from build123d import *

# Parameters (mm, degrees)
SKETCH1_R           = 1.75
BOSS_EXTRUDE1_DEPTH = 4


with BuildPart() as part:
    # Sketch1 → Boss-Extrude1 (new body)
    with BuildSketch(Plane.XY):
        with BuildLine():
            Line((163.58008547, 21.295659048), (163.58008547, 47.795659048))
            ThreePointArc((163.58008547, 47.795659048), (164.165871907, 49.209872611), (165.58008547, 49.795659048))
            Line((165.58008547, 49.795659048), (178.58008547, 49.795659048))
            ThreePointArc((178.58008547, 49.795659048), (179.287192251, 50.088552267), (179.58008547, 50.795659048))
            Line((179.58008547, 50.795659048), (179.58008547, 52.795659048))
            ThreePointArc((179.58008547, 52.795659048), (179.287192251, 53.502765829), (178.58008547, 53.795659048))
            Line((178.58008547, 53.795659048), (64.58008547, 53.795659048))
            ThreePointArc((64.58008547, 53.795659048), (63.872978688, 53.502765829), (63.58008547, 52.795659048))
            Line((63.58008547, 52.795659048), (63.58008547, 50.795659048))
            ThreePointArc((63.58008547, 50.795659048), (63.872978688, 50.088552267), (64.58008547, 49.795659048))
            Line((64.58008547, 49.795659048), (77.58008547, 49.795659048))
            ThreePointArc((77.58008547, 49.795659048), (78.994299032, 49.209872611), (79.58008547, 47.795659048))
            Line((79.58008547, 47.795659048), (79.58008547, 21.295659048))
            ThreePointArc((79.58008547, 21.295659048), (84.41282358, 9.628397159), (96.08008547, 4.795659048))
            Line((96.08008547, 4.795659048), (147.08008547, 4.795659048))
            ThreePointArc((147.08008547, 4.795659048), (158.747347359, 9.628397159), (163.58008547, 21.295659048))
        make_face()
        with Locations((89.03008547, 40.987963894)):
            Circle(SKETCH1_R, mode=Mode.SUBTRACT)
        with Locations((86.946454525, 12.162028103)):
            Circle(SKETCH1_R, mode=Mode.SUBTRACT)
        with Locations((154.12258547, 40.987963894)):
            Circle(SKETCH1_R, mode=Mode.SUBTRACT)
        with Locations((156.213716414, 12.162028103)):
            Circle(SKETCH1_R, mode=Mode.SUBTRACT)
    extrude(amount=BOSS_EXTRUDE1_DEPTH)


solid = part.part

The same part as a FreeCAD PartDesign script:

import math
import FreeCAD as App
import Part
import Sketcher

doc = App.newDocument("Part")
params = doc.addObject("Spreadsheet::Sheet", "Params")
for row, (alias, value) in enumerate([
    ("sketch1_radius", "2 mm"),
    ("sketch1_radius2", "1 mm"),
    ("sketch1_diameter", "3.5 mm"),
    ("sketch1_radius3", "16.5 mm"),
    ("sketch1_width", "13 mm"),
    ("pad1_length", "4 mm"),
], start=1):
    params.set(f"A{row}", alias)
    params.set(f"B{row}", "=" + value)
    params.setAlias(f"B{row}", alias)

body = doc.addObject("PartDesign::Body", "Body")

sketch1 = body.newObject("Sketcher::SketchObject", "Sketch")
sketch1.AttachmentSupport = (doc.getObject("XY_Plane"), [""])
sketch1.MapMode = "FlatFace"
sketch1.addGeometry([
    Part.LineSegment(App.Vector(163.6, 21.3, 0), App.Vector(163.6, 47.8, 0)),
    Part.ArcOfCircle(Part.Circle(App.Vector(165.6, 47.8, 0), App.Vector(0, 0, 1), 2), math.radians(90), math.radians(180)),
    Part.LineSegment(App.Vector(165.6, 49.8, 0), App.Vector(178.6, 49.8, 0)),
    Part.ArcOfCircle(Part.Circle(App.Vector(178.6, 50.8, 0), App.Vector(0, 0, 1), 1), math.radians(-90), math.radians(0)),
    Part.LineSegment(App.Vector(179.6, 50.8, 0), App.Vector(179.6, 52.8, 0)),
    Part.ArcOfCircle(Part.Circle(App.Vector(178.6, 52.8, 0), App.Vector(0, 0, 1), 1), math.radians(0), math.radians(90)),
    Part.LineSegment(App.Vector(178.6, 53.8, 0), App.Vector(64.6, 53.8, 0)),
    Part.ArcOfCircle(Part.Circle(App.Vector(64.6, 52.8, 0), App.Vector(0, 0, 1), 1), math.radians(90), math.radians(180)),
    Part.LineSegment(App.Vector(63.6, 52.8, 0), App.Vector(63.6, 50.8, 0)),
    Part.ArcOfCircle(Part.Circle(App.Vector(64.6, 50.8, 0), App.Vector(0, 0, 1), 1), math.radians(180), math.radians(270)),
    Part.LineSegment(App.Vector(64.6, 49.8, 0), App.Vector(77.6, 49.8, 0)),
    Part.ArcOfCircle(Part.Circle(App.Vector(77.6, 47.8, 0), App.Vector(0, 0, 1), 2), math.radians(0), math.radians(90)),
    Part.LineSegment(App.Vector(79.6, 47.8, 0), App.Vector(79.6, 21.3, 0)),
    Part.ArcOfCircle(Part.Circle(App.Vector(96.1, 21.3, 0), App.Vector(0, 0, 1), 16.5), math.radians(180), math.radians(270)),
    Part.LineSegment(App.Vector(96.1, 4.8, 0), App.Vector(147.1, 4.8, 0)),
    Part.ArcOfCircle(Part.Circle(App.Vector(147.1, 21.3, 0), App.Vector(0, 0, 1), 16.5), math.radians(-90), math.radians(0)),
    Part.Circle(App.Vector(86.9, 12.2, 0), App.Vector(0, 0, 1), 1.8),
    Part.Circle(App.Vector(156.2, 12.2, 0), App.Vector(0, 0, 1), 1.8),
    Part.Circle(App.Vector(89, 41, 0), App.Vector(0, 0, 1), 1.8),
    Part.Circle(App.Vector(154.1, 41, 0), App.Vector(0, 0, 1), 1.8),
], False)
sketch1.addConstraint([
    Sketcher.Constraint("Tangent", 0, 2, 1, 2),
    Sketcher.Constraint("Tangent", 1, 1, 2, 1),
    Sketcher.Constraint("Tangent", 2, 2, 3, 1),
    Sketcher.Constraint("Tangent", 3, 2, 4, 1),
    Sketcher.Constraint("Tangent", 4, 2, 5, 1),
    Sketcher.Constraint("Tangent", 5, 2, 6, 1),
    Sketcher.Constraint("Tangent", 6, 2, 7, 1),
    Sketcher.Constraint("Tangent", 7, 2, 8, 1),
    Sketcher.Constraint("Tangent", 8, 2, 9, 1),
    Sketcher.Constraint("Tangent", 9, 2, 10, 1),
    Sketcher.Constraint("Tangent", 10, 2, 11, 2),
    Sketcher.Constraint("Tangent", 11, 1, 12, 1),
    Sketcher.Constraint("Tangent", 12, 2, 13, 1),
    Sketcher.Constraint("Tangent", 13, 2, 14, 1),
    Sketcher.Constraint("Tangent", 14, 2, 15, 1),
    Sketcher.Constraint("Tangent", 15, 2, 0, 1),
    Sketcher.Constraint("Vertical", 0),
    Sketcher.Constraint("Horizontal", 2),
    Sketcher.Constraint("Vertical", 4),
    Sketcher.Constraint("Horizontal", 6),
    Sketcher.Constraint("Vertical", 8),
    Sketcher.Constraint("Horizontal", 10),
    Sketcher.Constraint("Vertical", 12),
    Sketcher.Constraint("Horizontal", 14),
    Sketcher.Constraint("Equal", 3, 5),
    Sketcher.Constraint("Equal", 5, 7),
    Sketcher.Constraint("Equal", 7, 9),
    Sketcher.Constraint("Equal", 1, 11),
    Sketcher.Constraint("Equal", 13, 15),
    Sketcher.Constraint("Equal", 16, 17),
    Sketcher.Constraint("Equal", 17, 18),
    Sketcher.Constraint("Equal", 18, 19),
    Sketcher.Constraint("Horizontal", 3, 3, 9, 3),
    Sketcher.Constraint("Horizontal", 16, 3, 17, 3),
    Sketcher.Constraint("Horizontal", 18, 3, 19, 3),
    Sketcher.Constraint("Equal", 2, 10),
    Sketcher.Constraint("Radius", 1, 2.0),
    Sketcher.Constraint("Radius", 3, 1.0),
    Sketcher.Constraint("Diameter", 16, 3.5),
    Sketcher.Constraint("Radius", 13, 16.5),
    Sketcher.Constraint("DistanceX", 2, 1, 2, 2, 13.0),
    Sketcher.Constraint("DistanceX", 6, 2, 6, 1, 114.0),
    Sketcher.Constraint("DistanceY", 4, 1, 4, 2, 2.0),
    Sketcher.Constraint("DistanceY", 0, 1, 0, 2, 26.5),
    Sketcher.Constraint("DistanceX", 11, 3, 18, 3, 11.45),
    Sketcher.Constraint("DistanceX", 19, 3, 1, 3, 11.4575),
    Sketcher.Constraint("DistanceY", -1, 1, 1, 3, 47.795659),
    Sketcher.Constraint("DistanceY", -1, 1, 16, 3, 12.162028),
    Sketcher.Constraint("DistanceX", 16, 3, 13, 3, 9.133631),
    Sketcher.Constraint("DistanceX", 15, 3, 17, 3, 9.133631),
    Sketcher.Constraint("DistanceX", -1, 1, 1, 3, 165.580085),
    Sketcher.Constraint("DistanceY", -1, 1, 18, 3, 40.987964),
])
sketch1.setExpression("Constraints[36]", "Params.sketch1_radius")
sketch1.setExpression("Constraints[37]", "Params.sketch1_radius2")
sketch1.setExpression("Constraints[38]", "Params.sketch1_diameter")
sketch1.setExpression("Constraints[39]", "Params.sketch1_radius3")
sketch1.setExpression("Constraints[40]", "Params.sketch1_width")
pad1 = body.newObject("PartDesign::Pad", "Pad")
pad1.Profile = sketch1
pad1.setExpression("Length", "Params.pad1_length")

doc.recompute()
